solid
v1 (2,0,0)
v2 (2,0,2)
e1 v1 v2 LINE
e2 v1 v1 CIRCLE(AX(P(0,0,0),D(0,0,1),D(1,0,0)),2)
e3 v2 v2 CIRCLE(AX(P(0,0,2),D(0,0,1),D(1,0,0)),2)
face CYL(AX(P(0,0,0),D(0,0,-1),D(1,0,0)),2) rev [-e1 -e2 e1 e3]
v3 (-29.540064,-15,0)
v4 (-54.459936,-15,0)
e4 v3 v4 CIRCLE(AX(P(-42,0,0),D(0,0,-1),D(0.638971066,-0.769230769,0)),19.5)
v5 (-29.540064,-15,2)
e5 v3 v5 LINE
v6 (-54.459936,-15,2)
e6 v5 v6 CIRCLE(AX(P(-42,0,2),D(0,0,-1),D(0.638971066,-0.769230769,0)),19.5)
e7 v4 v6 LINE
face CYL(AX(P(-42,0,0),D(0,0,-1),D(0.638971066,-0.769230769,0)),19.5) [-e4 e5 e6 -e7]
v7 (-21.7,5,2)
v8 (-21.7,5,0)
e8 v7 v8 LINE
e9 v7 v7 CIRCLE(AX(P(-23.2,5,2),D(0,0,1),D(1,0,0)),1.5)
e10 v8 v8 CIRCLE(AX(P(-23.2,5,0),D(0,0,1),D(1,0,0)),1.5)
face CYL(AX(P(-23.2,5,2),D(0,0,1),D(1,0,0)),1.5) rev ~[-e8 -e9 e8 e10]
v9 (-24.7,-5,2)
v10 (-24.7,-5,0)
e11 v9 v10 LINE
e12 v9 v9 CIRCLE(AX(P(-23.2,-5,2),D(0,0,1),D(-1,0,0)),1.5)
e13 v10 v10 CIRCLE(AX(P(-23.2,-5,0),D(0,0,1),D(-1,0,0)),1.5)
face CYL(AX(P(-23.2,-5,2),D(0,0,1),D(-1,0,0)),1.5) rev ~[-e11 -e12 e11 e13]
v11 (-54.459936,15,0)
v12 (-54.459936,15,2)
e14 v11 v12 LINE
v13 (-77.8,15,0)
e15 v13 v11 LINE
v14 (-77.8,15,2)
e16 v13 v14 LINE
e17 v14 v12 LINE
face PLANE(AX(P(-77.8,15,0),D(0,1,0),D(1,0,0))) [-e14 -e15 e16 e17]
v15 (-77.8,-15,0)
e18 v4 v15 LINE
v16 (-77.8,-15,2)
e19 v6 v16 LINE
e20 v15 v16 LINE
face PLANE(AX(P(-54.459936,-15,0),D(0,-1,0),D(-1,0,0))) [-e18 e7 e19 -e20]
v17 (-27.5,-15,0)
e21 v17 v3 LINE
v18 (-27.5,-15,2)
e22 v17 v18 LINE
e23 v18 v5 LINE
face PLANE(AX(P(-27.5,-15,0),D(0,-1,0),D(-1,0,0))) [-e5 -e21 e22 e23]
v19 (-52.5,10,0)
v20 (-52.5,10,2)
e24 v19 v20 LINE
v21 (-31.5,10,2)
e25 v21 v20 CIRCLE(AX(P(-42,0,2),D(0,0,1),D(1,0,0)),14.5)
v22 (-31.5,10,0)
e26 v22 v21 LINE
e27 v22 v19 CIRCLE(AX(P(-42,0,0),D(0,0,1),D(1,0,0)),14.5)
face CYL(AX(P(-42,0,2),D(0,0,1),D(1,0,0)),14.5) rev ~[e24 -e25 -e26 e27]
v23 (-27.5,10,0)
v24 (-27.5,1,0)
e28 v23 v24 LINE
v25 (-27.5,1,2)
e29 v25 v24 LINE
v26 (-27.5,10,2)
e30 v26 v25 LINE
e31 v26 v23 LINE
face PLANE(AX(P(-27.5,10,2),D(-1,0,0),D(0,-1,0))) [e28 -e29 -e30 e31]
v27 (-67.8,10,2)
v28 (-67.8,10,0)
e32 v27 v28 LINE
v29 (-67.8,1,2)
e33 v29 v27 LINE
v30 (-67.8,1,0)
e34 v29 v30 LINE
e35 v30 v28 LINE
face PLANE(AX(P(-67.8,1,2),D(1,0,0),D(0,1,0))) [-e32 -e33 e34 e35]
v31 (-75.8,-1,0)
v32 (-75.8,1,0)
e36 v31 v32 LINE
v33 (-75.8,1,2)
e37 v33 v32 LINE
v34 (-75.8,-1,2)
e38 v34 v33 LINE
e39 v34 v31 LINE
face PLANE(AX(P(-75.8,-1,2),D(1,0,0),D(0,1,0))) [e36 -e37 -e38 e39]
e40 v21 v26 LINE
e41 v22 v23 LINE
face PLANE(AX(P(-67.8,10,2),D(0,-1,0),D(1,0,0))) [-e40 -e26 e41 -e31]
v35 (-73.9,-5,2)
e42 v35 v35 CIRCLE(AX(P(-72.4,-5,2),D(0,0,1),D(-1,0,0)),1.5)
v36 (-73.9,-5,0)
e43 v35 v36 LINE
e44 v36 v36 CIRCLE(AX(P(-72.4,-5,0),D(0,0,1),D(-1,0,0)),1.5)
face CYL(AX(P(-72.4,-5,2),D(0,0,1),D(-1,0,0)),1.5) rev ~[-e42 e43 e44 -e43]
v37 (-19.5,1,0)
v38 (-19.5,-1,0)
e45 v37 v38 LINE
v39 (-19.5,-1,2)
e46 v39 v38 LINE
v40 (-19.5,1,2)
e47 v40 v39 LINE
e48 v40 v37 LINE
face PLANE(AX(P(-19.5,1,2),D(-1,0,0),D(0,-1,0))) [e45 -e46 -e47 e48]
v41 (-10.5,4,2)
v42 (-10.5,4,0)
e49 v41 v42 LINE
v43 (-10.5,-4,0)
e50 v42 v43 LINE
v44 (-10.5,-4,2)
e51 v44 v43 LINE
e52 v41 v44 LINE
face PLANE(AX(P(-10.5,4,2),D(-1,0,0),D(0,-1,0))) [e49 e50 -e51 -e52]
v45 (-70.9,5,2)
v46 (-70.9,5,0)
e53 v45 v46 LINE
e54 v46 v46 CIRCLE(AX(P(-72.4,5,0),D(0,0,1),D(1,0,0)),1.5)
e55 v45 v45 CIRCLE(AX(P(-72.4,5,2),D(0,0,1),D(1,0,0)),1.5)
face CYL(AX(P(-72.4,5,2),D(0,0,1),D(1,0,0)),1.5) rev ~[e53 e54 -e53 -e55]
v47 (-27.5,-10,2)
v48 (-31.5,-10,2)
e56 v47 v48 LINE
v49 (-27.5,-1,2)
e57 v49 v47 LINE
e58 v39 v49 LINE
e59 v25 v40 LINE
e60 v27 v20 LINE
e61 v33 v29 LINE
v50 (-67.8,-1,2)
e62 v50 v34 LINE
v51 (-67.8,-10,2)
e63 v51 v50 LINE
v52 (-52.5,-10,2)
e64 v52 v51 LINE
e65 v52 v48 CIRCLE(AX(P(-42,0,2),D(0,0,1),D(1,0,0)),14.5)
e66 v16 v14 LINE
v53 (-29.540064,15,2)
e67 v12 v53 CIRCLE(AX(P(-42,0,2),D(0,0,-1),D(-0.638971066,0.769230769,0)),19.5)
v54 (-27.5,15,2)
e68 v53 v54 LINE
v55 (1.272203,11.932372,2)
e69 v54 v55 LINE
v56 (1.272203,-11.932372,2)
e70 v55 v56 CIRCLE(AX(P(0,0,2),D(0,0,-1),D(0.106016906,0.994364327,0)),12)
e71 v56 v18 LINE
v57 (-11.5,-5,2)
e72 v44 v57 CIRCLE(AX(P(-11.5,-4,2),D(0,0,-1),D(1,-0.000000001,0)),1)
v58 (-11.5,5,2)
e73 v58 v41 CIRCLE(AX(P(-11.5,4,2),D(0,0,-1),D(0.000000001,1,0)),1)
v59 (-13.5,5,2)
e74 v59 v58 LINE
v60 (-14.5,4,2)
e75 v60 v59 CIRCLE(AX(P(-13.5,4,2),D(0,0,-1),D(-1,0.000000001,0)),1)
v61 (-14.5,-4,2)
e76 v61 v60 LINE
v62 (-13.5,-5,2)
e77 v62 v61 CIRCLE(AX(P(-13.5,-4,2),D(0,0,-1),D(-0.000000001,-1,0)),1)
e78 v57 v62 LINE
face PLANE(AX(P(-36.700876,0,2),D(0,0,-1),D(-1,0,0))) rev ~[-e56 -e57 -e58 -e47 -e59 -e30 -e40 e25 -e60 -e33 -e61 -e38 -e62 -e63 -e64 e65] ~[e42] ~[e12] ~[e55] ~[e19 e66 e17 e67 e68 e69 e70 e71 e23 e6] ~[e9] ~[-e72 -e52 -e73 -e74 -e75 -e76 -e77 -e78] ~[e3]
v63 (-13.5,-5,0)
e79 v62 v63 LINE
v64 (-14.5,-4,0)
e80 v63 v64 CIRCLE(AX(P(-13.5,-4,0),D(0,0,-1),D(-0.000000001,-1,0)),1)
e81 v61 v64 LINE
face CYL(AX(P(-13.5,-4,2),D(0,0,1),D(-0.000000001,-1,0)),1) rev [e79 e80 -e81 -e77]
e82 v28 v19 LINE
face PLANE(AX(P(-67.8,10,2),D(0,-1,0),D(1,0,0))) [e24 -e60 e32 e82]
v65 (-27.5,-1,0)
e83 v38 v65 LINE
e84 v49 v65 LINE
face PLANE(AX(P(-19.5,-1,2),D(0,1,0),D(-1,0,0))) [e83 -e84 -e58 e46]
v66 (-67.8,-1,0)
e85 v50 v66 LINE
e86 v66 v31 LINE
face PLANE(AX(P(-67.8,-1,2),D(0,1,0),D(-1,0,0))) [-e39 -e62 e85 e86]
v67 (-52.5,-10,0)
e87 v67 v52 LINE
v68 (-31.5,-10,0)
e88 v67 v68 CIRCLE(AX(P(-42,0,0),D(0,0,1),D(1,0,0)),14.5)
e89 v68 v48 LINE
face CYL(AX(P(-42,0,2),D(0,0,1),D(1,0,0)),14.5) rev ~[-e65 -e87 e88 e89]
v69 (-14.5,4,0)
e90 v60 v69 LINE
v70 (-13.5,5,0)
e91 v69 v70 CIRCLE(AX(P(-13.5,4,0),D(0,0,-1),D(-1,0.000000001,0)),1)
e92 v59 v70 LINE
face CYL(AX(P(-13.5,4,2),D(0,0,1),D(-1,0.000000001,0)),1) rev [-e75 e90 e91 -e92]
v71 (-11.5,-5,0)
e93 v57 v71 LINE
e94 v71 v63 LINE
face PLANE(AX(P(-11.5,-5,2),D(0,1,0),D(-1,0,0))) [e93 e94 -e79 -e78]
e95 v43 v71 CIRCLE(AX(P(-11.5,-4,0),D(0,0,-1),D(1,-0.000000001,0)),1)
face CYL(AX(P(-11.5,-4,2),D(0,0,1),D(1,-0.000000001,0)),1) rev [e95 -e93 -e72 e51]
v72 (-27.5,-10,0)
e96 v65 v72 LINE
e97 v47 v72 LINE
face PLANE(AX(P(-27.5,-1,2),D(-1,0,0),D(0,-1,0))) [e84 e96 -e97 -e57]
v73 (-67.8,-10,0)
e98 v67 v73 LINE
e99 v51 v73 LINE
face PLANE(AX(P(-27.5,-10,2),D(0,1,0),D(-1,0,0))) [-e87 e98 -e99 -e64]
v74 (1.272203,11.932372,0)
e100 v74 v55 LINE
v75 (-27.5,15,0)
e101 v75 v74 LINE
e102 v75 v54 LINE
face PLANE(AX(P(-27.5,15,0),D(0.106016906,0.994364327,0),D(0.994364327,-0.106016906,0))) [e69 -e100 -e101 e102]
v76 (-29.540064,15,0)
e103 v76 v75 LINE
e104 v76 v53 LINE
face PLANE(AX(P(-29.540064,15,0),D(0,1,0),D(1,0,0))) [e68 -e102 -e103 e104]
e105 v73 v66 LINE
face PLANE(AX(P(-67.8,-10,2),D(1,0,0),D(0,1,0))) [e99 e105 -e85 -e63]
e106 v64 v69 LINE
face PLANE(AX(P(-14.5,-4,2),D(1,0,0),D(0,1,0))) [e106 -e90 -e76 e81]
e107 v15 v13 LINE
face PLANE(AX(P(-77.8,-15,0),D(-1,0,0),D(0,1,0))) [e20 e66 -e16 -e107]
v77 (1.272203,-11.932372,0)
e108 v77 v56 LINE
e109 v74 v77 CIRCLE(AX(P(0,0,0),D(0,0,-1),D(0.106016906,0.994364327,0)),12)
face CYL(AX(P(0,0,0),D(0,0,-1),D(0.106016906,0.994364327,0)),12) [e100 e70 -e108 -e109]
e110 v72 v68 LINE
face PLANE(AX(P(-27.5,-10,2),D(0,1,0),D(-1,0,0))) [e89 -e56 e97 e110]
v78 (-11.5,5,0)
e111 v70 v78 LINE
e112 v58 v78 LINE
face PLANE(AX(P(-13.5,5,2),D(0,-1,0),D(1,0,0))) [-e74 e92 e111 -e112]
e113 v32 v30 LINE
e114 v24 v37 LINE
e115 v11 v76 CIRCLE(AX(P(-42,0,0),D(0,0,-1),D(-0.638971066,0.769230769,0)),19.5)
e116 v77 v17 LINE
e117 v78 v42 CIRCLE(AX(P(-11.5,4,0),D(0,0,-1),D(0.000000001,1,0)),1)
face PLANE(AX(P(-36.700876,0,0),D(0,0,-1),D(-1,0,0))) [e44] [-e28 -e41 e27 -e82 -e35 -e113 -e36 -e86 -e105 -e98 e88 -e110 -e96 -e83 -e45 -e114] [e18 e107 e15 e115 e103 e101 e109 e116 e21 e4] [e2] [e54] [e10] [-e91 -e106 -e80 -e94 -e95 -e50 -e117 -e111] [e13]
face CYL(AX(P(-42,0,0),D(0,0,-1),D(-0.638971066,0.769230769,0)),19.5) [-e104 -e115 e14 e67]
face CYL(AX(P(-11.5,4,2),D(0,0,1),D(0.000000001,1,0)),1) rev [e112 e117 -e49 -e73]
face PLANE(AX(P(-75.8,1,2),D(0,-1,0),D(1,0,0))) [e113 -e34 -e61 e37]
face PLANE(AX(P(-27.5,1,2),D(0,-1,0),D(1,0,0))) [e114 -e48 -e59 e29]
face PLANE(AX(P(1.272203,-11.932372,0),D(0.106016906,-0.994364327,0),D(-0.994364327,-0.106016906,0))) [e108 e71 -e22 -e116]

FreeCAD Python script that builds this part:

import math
import FreeCAD as App
import Part
import Sketcher

V = App.Vector


def add_polygon(sketch, points):
    """Adds a closed chain of lines whose ends are joined by coincident constraints."""
    first, n = sketch.GeometryCount, len(points)
    for a, b in zip(points, points[1:] + points[:1]):
        sketch.addGeometry(Part.LineSegment(App.Vector(*a, 0), App.Vector(*b, 0)), False)
    for i in range(n):
        sketch.addConstraint(Sketcher.Constraint("Coincident", first + i, 2, first + (i + 1) % n, 1))

doc = App.newDocument("Part")
body = doc.addObject("PartDesign::Body", "Body")

# Sketch on XY plane
sketch1 = body.newObject("Sketcher::SketchObject", "Sketch")
sketch1.AttachmentSupport = (doc.getObject("XY_Plane"), [""])
sketch1.MapMode = "FlatFace"
sketch1.addGeometry(Part.LineSegment(V(-27.5, -15, 0), V(1.272203, -11.932372, 0)), False)
sketch1.addGeometry(Part.ArcOfCircle(Part.Circle(V(0, 0, 0), V(0, 0, 1), 12), math.radians(-83.914242), math.radians(83.914242)), False)
sketch1.addGeometry(Part.LineSegment(V(1.272203, 11.932372, 0), V(-27.5, 15, 0)), False)
sketch1.addGeometry(Part.LineSegment(V(-27.5, 15, 0), V(-29.540064, 15, 0)), False)
sketch1.addGeometry(Part.ArcOfCircle(Part.Circle(V(-42, 0, 0), V(0, 0, 1), 19.5), math.radians(50.284863), math.radians(129.715137)), False)
sketch1.addGeometry(Part.LineSegment(V(-54.459936, 15, 0), V(-77.8, 15, 0)), False)
sketch1.addGeometry(Part.LineSegment(V(-77.8, 15, 0), V(-77.8, -15, 0)), False)
sketch1.addGeometry(Part.LineSegment(V(-77.8, -15, 0), V(-54.459936, -15, 0)), False)
sketch1.addGeometry(Part.ArcOfCircle(Part.Circle(V(-42, 0, 0), V(0, 0, 1), 19.5), math.radians(-129.715137), math.radians(-50.284863)), False)
sketch1.addGeometry(Part.LineSegment(V(-29.540064, -15, 0), V(-27.5, -15, 0)), False)
sketch1.addGeometry(Part.Circle(V(0, 0, 0), V(0, 0, 1), 2), False)
sketch1.addConstraint(Sketcher.Constraint("Tangent", 0, 2, 1, 1))
sketch1.addConstraint(Sketcher.Constraint("Tangent", 1, 2, 2, 1))
sketch1.addConstraint(Sketcher.Constraint("Coincident", 2, 2, 3, 1))
sketch1.addConstraint(Sketcher.Constraint("Coincident", 3, 2, 4, 1))
sketch1.addConstraint(Sketcher.Constraint("Coincident", 4, 2, 5, 1))
sketch1.addConstraint(Sketcher.Constraint("Coincident", 5, 2, 6, 1))
sketch1.addConstraint(Sketcher.Constraint("Coincident", 6, 2, 7, 1))
sketch1.addConstraint(Sketcher.Constraint("Coincident", 7, 2, 8, 1))
sketch1.addConstraint(Sketcher.Constraint("Coincident", 8, 2, 9, 1))
sketch1.addConstraint(Sketcher.Constraint("Coincident", 9, 2, 0, 1))
sketch1.addConstraint(Sketcher.Constraint("Horizontal", 3))
sketch1.addConstraint(Sketcher.Constraint("Horizontal", 5))
sketch1.addConstraint(Sketcher.Constraint("Vertical", 6))
sketch1.addConstraint(Sketcher.Constraint("Horizontal", 7))
sketch1.addConstraint(Sketcher.Constraint("Horizontal", 9))
sketch1.addConstraint(Sketcher.Constraint("Coincident", 1, 3, -1, 1))
sketch1.addConstraint(Sketcher.Constraint("Coincident", 10, 3, -1, 1))
sketch1.addConstraint(Sketcher.Constraint("Coincident", 8, 3, 4, 3))
sketch1.addConstraint(Sketcher.Constraint("Equal", 4, 8))
sketch1.addConstraint(Sketcher.Constraint("Symmetric", 4, 2, 7, 2, -1))
sketch1.addConstraint(Sketcher.Constraint("Symmetric", 2, 2, 9, 2, -1))
sketch1.addConstraint(Sketcher.Constraint("Horizontal", 3, 2, 4, 2))
sketch1.addConstraint(Sketcher.Constraint("Diameter", 10, 4.0))
sketch1.addConstraint(Sketcher.Constraint("Radius", 1, 12.0))
sketch1.addConstraint(Sketcher.Constraint("Radius", 4, 19.5))
sketch1.addConstraint(Sketcher.Constraint("DistanceY", 6, 2, 6, 1, 30.0))
sketch1.addConstraint(Sketcher.Constraint("DistanceX", 4, 3, -1, 1, 42.0))
sketch1.addConstraint(Sketcher.Constraint("DistanceX", 2, 2, -1, 1, 27.5))
sketch1.addConstraint(Sketcher.Constraint("DistanceX", 5, 2, -1, 1, 77.8))
pad1 = body.newObject("PartDesign::Pad", "Pad")
pad1.Profile = sketch1
pad1.Length = 2

# Sketch on XY plane
sketch2 = body.newObject("Sketcher::SketchObject", "Sketch001")
sketch2.AttachmentSupport = (doc.getObject("XY_Plane"), [""])
sketch2.MapMode = "FlatFace"
sketch2.AttachmentOffset = App.Placement(V(0, 0, 2), App.Rotation())
sketch2.addGeometry(Part.Circle(V(-23.2, 5, 0), V(0, 0, 1), 1.5), False)
sketch2.addGeometry(Part.Circle(V(-72.4, 5, 0), V(0, 0, 1), 1.5), False)
sketch2.addGeometry(Part.Circle(V(-23.2, -5, 0), V(0, 0, 1), 1.5), False)
sketch2.addGeometry(Part.Circle(V(-72.4, -5, 0), V(0, 0, 1), 1.5), False)
sketch2.addConstraint(Sketcher.Constraint("Equal", 0, 1))
sketch2.addConstraint(Sketcher.Constraint("Equal", 1, 2))
sketch2.addConstraint(Sketcher.Constraint("Equal", 2, 3))
sketch2.addConstraint(Sketcher.Constraint("Symmetric", 0, 3, 2, 3, -1))
sketch2.addConstraint(Sketcher.Constraint("Symmetric", 1, 3, 3, 3, -1))
sketch2.addConstraint(Sketcher.Constraint("Horizontal", 0, 3, 1, 3))
sketch2.addConstraint(Sketcher.Constraint("Diameter", 0, 3.0))
sketch2.addConstraint(Sketcher.Constraint("DistanceY", -1, 1, 0, 3, 5.0))
sketch2.addConstraint(Sketcher.Constraint("DistanceX", 0, 3, -1, 1, 23.2))
sketch2.addConstraint(Sketcher.Constraint("DistanceX", 1, 3, -1, 1, 72.4))
pocket1 = body.newObject("PartDesign::Pocket", "Pocket")
pocket1.Profile = sketch2
pocket1.Length = 2

# Sketch on XY plane
sketch3 = body.newObject("Sketcher::SketchObject", "Sketch002")
sketch3.AttachmentSupport = (doc.getObject("XY_Plane"), [""])
sketch3.MapMode = "FlatFace"
sketch3.AttachmentOffset = App.Placement(V(0, 0, 2), App.Rotation())
sketch3.addGeometry(Part.LineSegment(V(-11.5, 5, 0), V(-13.5, 5, 0)), False)
sketch3.addGeometry(Part.ArcOfCircle(Part.Circle(V(-13.5, 4, 0), V(0, 0, 1), 1), math.radians(90), math.radians(180)), False)
sketch3.addGeometry(Part.LineSegment(V(-14.5, 4, 0), V(-14.5, -4, 0)), False)
sketch3.addGeometry(Part.ArcOfCircle(Part.Circle(V(-13.5, -4, 0), V(0, 0, 1), 1), math.radians(-180), math.radians(-90)), False)
sketch3.addGeometry(Part.LineSegment(V(-13.5, -5, 0), V(-11.5, -5, 0)), False)
sketch3.addGeometry(Part.ArcOfCircle(Part.Circle(V(-11.5, -4, 0), V(0, 0, 1), 1), math.radians(-90), math.radians(0)), False)
sketch3.addGeometry(Part.LineSegment(V(-10.5, -4, 0), V(-10.5, 4, 0)), False)
sketch3.addGeometry(Part.ArcOfCircle(Part.Circle(V(-11.5, 4, 0), V(0, 0, 1), 1), math.radians(0), math.radians(90)), False)
sketch3.addConstraint(Sketcher.Constraint("Tangent", 0, 2, 1, 1))
sketch3.addConstraint(Sketcher.Constraint("Tangent", 1, 2, 2, 1))
sketch3.addConstraint(Sketcher.Constraint("Tangent", 2, 2, 3, 1))
sketch3.addConstraint(Sketcher.Constraint("Tangent", 3, 2, 4, 1))
sketch3.addConstraint(Sketcher.Constraint("Tangent", 4, 2, 5, 1))
sketch3.addConstraint(Sketcher.Constraint("Tangent", 5, 2, 6, 1))
sketch3.addConstraint(Sketcher.Constraint("Tangent", 6, 2, 7, 1))
sketch3.addConstraint(Sketcher.Constraint("Tangent", 7, 2, 0, 1))
sketch3.addConstraint(Sketcher.Constraint("Horizontal", 0))
sketch3.addConstraint(Sketcher.Constraint("Vertical", 2))
sketch3.addConstraint(Sketcher.Constraint("Horizontal", 4))
sketch3.addConstraint(Sketcher.Constraint("Vertical", 6))
sketch3.addConstraint(Sketcher.Constraint("Equal", 1, 3))
sketch3.addConstraint(Sketcher.Constraint("Equal", 3, 5))
sketch3.addConstraint(Sketcher.Constraint("Equal", 5, 7))
sketch3.addConstraint(Sketcher.Constraint("Radius", 1, 1.0))
sketch3.addConstraint(Sketcher.Constraint("DistanceX", 0, 2, 0, 1, 2.0))
sketch3.addConstraint(Sketcher.Constraint("DistanceY", 2, 2, 2, 1, 8.0))
sketch3.addConstraint(Sketcher.Constraint("DistanceY", -1, 1, 1, 3, 4.0))
sketch3.addConstraint(Sketcher.Constraint("DistanceX", 1, 3, -1, 1, 13.5))
pocket2 = body.newObject("PartDesign::Pocket", "Pocket001")
pocket2.Profile = sketch3
pocket2.Length = 2

# Sketch on XY plane
sketch4 = body.newObject("Sketcher::SketchObject", "Sketch003")
sketch4.AttachmentSupport = (doc.getObject("XY_Plane"), [""])
sketch4.MapMode = "FlatFace"
sketch4.AttachmentOffset = App.Placement(V(0, 0, 2), App.Rotation())
add_polygon(sketch4, [(-27.5, -10), (-27.5, -1), (-19.5, -1), (-19.5, 1), (-27.5, 1), (-27.5, 10), (-67.8, 10), (-67.8, 1), (-75.8, 1), (-75.8, -1), (-67.8, -1), (-67.8, -10)])  # lines 0-11
sketch4.addConstraint(Sketcher.Constraint("Vertical", 0))
sketch4.addConstraint(Sketcher.Constraint("Horizontal", 1))
sketch4.addConstraint(Sketcher.Constraint("Vertical", 2))
sketch4.addConstraint(Sketcher.Constraint("Horizontal", 3))
sketch4.addConstraint(Sketcher.Constraint("Vertical", 4))
sketch4.addConstraint(Sketcher.Constraint("Horizontal", 5))
sketch4.addConstraint(Sketcher.Constraint("Vertical", 6))
sketch4.addConstraint(Sketcher.Constraint("Horizontal", 7))
sketch4.addConstraint(Sketcher.Constraint("Vertical", 8))
sketch4.addConstraint(Sketcher.Constraint("Horizontal", 9))
sketch4.addConstraint(Sketcher.Constraint("Vertical", 10))
sketch4.addConstraint(Sketcher.Constraint("Horizontal", 11))
sketch4.addConstraint(Sketcher.Constraint("Symmetric", 0, 2, 3, 2, -1))
sketch4.addConstraint(Sketcher.Constraint("Symmetric", 6, 2, 9, 2, -1))
sketch4.addConstraint(Sketcher.Constraint("Horizontal", 3, 2, 6, 2))
sketch4.addConstraint(Sketcher.Constraint("Equal", 3, 7))
sketch4.addConstraint(Sketcher.Constraint("Equal", 0, 4))
sketch4.addConstraint(Sketcher.Constraint("DistanceX", 1, 1, 1, 2, 8.0))
sketch4.addConstraint(Sketcher.Constraint("DistanceY", 0, 1, 0, 2, 9.0))
sketch4.addConstraint(Sketcher.Constraint("DistanceY", 2, 1, 2, 2, 2.0))
sketch4.addConstraint(Sketcher.Constraint("DistanceX", 5, 2, 5, 1, 40.3))
sketch4.addConstraint(Sketcher.Constraint("DistanceX", 0, 2, -1, 1, 27.5))
pocket3 = body.newObject("PartDesign::Pocket", "Pocket002")
pocket3.Profile = sketch4
pocket3.Length = 2

# Sketch on XY plane
sketch5 = body.newObject("Sketcher::SketchObject", "Sketch004")
sketch5.AttachmentSupport = (doc.getObject("XY_Plane"), [""])
sketch5.MapMode = "FlatFace"
sketch5.AttachmentOffset = App.Placement(V(0, 0, 2), App.Rotation())
sketch5.addGeometry(Part.Circle(V(-42, 0, 0), V(0, 0, 1), 14.5), False)
sketch5.addConstraint(Sketcher.Constraint("PointOnObject", 0, 3, -1))
sketch5.addConstraint(Sketcher.Constraint("Diameter", 0, 29.0))
sketch5.addConstraint(Sketcher.Constraint("DistanceX", 0, 3, -1, 1, 42.0))
pocket4 = body.newObject("PartDesign::Pocket", "Pocket003")
pocket4.Profile = sketch5
pocket4.Length = 2

doc.recompute()
